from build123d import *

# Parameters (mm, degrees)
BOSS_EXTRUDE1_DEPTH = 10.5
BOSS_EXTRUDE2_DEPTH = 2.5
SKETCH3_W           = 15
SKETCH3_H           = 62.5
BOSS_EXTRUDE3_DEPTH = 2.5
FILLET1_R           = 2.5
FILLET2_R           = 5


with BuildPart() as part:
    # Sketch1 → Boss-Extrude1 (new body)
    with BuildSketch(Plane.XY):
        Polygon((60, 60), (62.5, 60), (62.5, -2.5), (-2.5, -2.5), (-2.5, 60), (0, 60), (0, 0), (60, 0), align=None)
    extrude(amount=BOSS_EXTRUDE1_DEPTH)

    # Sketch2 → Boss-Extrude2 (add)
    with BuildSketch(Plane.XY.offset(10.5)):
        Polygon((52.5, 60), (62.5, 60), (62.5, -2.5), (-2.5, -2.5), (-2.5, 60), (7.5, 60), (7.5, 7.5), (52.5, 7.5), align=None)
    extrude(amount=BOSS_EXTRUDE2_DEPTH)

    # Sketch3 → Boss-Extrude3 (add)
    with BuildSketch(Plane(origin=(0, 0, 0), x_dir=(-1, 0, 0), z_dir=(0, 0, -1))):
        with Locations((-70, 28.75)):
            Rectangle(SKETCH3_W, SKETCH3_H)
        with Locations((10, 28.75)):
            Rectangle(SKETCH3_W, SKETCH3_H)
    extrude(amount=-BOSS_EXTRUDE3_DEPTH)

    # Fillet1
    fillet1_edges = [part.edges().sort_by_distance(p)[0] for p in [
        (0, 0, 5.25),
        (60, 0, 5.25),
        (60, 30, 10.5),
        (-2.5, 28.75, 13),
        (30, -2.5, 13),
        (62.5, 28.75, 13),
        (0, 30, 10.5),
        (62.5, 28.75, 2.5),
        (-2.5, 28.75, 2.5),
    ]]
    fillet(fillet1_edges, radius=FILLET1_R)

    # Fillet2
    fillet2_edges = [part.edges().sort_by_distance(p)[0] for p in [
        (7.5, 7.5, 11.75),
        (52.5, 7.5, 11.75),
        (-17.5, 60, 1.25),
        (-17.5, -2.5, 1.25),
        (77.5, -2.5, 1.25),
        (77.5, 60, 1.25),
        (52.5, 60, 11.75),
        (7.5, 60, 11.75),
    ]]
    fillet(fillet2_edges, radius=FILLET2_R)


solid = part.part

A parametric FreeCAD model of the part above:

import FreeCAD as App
import Part
import Sketcher


def edges_at(feature, points):
    """Names of the edges that pass closest to the given points."""
    edges = feature.Shape.Edges
    near = lambda p: min(range(len(edges)), key=lambda i: edges[i].distToShape(Part.Vertex(*p))[0])
    return sorted({f"Edge{near(p) + 1}" for p in points})

doc = App.newDocument("Part")
body = doc.addObject("PartDesign::Body", "Body")

sketch1 = doc.addObject("Sketcher::SketchObject", "Sketch")
body.addObject(sketch1)
sketch1.AttachmentSupport = (doc.XY_Plane, [""])
sketch1.MapMode = "FlatFace"
sketch1.addGeometry([
    Part.LineSegment(App.Vector(62.5, 60, 0), App.Vector(60, 60, 0)),
    Part.LineSegment(App.Vector(60, 60, 0), App.Vector(60, 0, 0)),
    Part.LineSegment(App.Vector(60, 0, 0), App.Vector(0, 0, 0)),
    Part.LineSegment(App.Vector(0, 0, 0), App.Vector(0, 60, 0)),
    Part.LineSegment(App.Vector(0, 60, 0), App.Vector(-2.5, 60, 0)),
    Part.LineSegment(App.Vector(-2.5, 60, 0), App.Vector(-2.5, -2.5, 0)),
    Part.LineSegment(App.Vector(-2.5, -2.5, 0), App.Vector(62.5, -2.5, 0)),
    Part.LineSegment(App.Vector(62.5, -2.5, 0), App.Vector(62.5, 60, 0)),
], False)
sketch1.addConstraint([
    Sketcher.Constraint("Coincident", 0, 2, 1, 1),
    Sketcher.Constraint("Coincident", 1, 2, 2, 1),
    Sketcher.Constraint("Coincident", 2, 2, 3, 1),
    Sketcher.Constraint("Coincident", 3, 2, 4, 1),
    Sketcher.Constraint("Coincident", 4, 2, 5, 1),
    Sketcher.Constraint("Coincident", 5, 2, 6, 1),
    Sketcher.Constraint("Coincident", 6, 2, 7, 1),
    Sketcher.Constraint("Coincident", 7, 2, 0, 1),
    Sketcher.Constraint("Horizontal", 0),
    Sketcher.Constraint("Vertical", 1),
    Sketcher.Constraint("Horizontal", 2),
    Sketcher.Constraint("Vertical", 3),
    Sketcher.Constraint("Horizontal", 4),
    Sketcher.Constraint("Vertical", 5),
    Sketcher.Constraint("Horizontal", 6),
    Sketcher.Constraint("Vertical", 7),
    Sketcher.Constraint("Coincident", 2, 2, -1, 1),
    Sketcher.Constraint("Horizontal", 0, 2, 3, 2),
    Sketcher.Constraint("Equal", 0, 4),
    Sketcher.Constraint("Equal", 2, 1),
    Sketcher.Constraint("DistanceX", 2, 2, 2, 1, 60.0),
    Sketcher.Constraint("DistanceX", 6, 1, 6, 2, 65.0),
    Sketcher.Constraint("DistanceY", 5, 2, 5, 1, 62.5),
])
pad1 = doc.addObject("PartDesign::Pad", "Pad")
body.addObject(pad1)
pad1.Profile = sketch1
pad1.Length = 10.5

sketch2 = doc.addObject("Sketcher::SketchObject", "Sketch001")
body.addObject(sketch2)
sketch2.AttachmentSupport = (doc.XY_Plane, [""])
sketch2.MapMode = "FlatFace"
sketch2.AttachmentOffset = App.Placement(App.Vector(0, 0, 10.5), App.Rotation())
sketch2.addGeometry([
    Part.LineSegment(App.Vector(62, 60, 0), App.Vector(52, 60, 0)),
    Part.LineSegment(App.Vector(52, 60, 0), App.Vector(52, 8, 0)),
    Part.LineSegment(App.Vector(52, 8, 0), App.Vector(8, 8, 0)),
    Part.LineSegment(App.Vector(8, 8, 0), App.Vector(8, 60, 0)),
    Part.LineSegment(App.Vector(8, 60, 0), App.Vector(-2, 60, 0)),
    Part.LineSegment(App.Vector(-2, 60, 0), App.Vector(-2, -2, 0)),
    Part.LineSegment(App.Vector(-2, -2, 0), App.Vector(62, -2, 0)),
    Part.LineSegment(App.Vector(62, -2, 0), App.Vector(62, 60, 0)),
], False)
sketch2.addConstraint([
    Sketcher.Constraint("Coincident", 0, 2, 1, 1),
    Sketcher.Constraint("Coincident", 1, 2, 2, 1),
    Sketcher.Constraint("Coincident", 2, 2, 3, 1),
    Sketcher.Constraint("Coincident", 3, 2, 4, 1),
    Sketcher.Constraint("Coincident", 4, 2, 5, 1),
    Sketcher.Constraint("Coincident", 5, 2, 6, 1),
    Sketcher.Constraint("Coincident", 6, 2, 7, 1),
    Sketcher.Constraint("Coincident", 7, 2, 0, 1),
    Sketcher.Constraint("Horizontal", 0),
    Sketcher.Constraint("Vertical", 1),
    Sketcher.Constraint("Horizontal", 2),
    Sketcher.Constraint("Vertical", 3),
    Sketcher.Constraint("Horizontal", 4),
    Sketcher.Constraint("Vertical", 5),
    Sketcher.Constraint("Horizontal", 6),
    Sketcher.Constraint("Vertical", 7),
    Sketcher.Constraint("Horizontal", 0, 2, 3, 2),
    Sketcher.Constraint("Equal", 0, 4),
    Sketcher.Constraint("DistanceX", 0, 2, 0, 1, 10.0),
    Sketcher.Constraint("DistanceX", 2, 2, 2, 1, 45.0),
    Sketcher.Constraint("DistanceY", 1, 2, 1, 1, 52.5),
    Sketcher.Constraint("DistanceY", 5, 2, 5, 1, 62.5),
    Sketcher.Constraint("DistanceY", -1, 1, 0, 2, 60.0),
    Sketcher.Constraint("DistanceX", -1, 1, 0, 2, 52.5),
])
pad2 = doc.addObject("PartDesign::Pad", "Pad001")
body.addObject(pad2)
pad2.Profile = sketch2
pad2.Length = 2.5

sketch3 = doc.addObject("Sketcher::SketchObject", "Sketch002")
body.addObject(sketch3)
sketch3.AttachmentSupport = (doc.XY_Plane, [""])
sketch3.MapMode = "FlatFace"
sketch3.addGeometry([
    Part.LineSegment(App.Vector(78, 60, 0), App.Vector(78, -2, 0)),
    Part.LineSegment(App.Vector(78, -2, 0), App.Vector(62, -2, 0)),
    Part.LineSegment(App.Vector(62, -2, 0), App.Vector(62, 60, 0)),
    Part.LineSegment(App.Vector(62, 60, 0), App.Vector(78, 60, 0)),
    Part.LineSegment(App.Vector(-2, 60, 0), App.Vector(-2, -2, 0)),
    Part.LineSegment(App.Vector(-2, -2, 0), App.Vector(-18, -2, 0)),
    Part.LineSegment(App.Vector(-18, -2, 0), App.Vector(-18, 60, 0)),
    Part.LineSegment(App.Vector(-18, 60, 0), App.Vector(-2, 60, 0)),
], False)
sketch3.addConstraint([
    Sketcher.Constraint("Coincident", 0, 2, 1, 1),
    Sketcher.Constraint("Coincident", 1, 2, 2, 1),
    Sketcher.Constraint("Coincident", 2, 2, 3, 1),
    Sketcher.Constraint("Coincident", 3, 2, 0, 1),
    Sketcher.Constraint("Coincident", 4, 2, 5, 1),
    Sketcher.Constraint("Coincident", 5, 2, 6, 1),
    Sketcher.Constraint("Coincident", 6, 2, 7, 1),
    Sketcher.Constraint("Coincident", 7, 2, 4, 1),
    Sketcher.Constraint("Vertical", 0),
    Sketcher.Constraint("Horizontal", 1),
    Sketcher.Constraint("Vertical", 2),
    Sketcher.Constraint("Horizontal", 3),
    Sketcher.Constraint("Vertical", 4),
    Sketcher.Constraint("Horizontal", 5),
    Sketcher.Constraint("Vertical", 6),
    Sketcher.Constraint("Horizontal", 7),
    Sketcher.Constraint("Horizontal", 1, 2, 4, 2),
    Sketcher.Constraint("Horizontal", 3, 2, 6, 2),
    Sketcher.Constraint("Equal", 3, 5),
    Sketcher.Constraint("DistanceX", 1, 2, 1, 1, 15.0),
    Sketcher.Constraint("DistanceY", 0, 2, 0, 1, 62.5),
    Sketcher.Constraint("DistanceY", -1, 1, 2, 2, 60.0),
    Sketcher.Constraint("DistanceX", 4, 2, 1, 2, 65.0),
    Sketcher.Constraint("DistanceX", -1, 1, 0, 2, 77.5),
])
pad3 = doc.addObject("PartDesign::Pad", "Pad002")
body.addObject(pad3)
pad3.Profile = sketch3
pad3.Length = 2.5
doc.recompute()

fillet = doc.addObject("PartDesign::Fillet", "Fillet")
body.addObject(fillet)
fillet.Base = (pad3, edges_at(pad3, [
    (0, 0, 5.25),
    (60, 0, 5.25),
    (60, 30, 10.5),
    (-2.5, 28.75, 13),
    (30, -2.5, 13),
    (62.5, 28.75, 13),
    (0, 30, 10.5),
    (62.5, 28.75, 2.5),
    (-2.5, 28.75, 2.5),
]))
fillet.Radius = 2.5
doc.recompute()

fillet2 = doc.addObject("PartDesign::Fillet", "Fillet001")
body.addObject(fillet2)
fillet2.Base = (fillet, edges_at(fillet, [
    (7.5, 7.5, 11.75),
    (52.5, 7.5, 11.75),
    (-17.5, 60, 1.25),
    (-17.5, -2.5, 1.25),
    (77.5, -2.5, 1.25),
    (77.5, 60, 1.25),
    (52.5, 60, 11.75),
    (7.5, 60, 11.75),
]))
fillet2.Radius = 5

doc.recompute()
